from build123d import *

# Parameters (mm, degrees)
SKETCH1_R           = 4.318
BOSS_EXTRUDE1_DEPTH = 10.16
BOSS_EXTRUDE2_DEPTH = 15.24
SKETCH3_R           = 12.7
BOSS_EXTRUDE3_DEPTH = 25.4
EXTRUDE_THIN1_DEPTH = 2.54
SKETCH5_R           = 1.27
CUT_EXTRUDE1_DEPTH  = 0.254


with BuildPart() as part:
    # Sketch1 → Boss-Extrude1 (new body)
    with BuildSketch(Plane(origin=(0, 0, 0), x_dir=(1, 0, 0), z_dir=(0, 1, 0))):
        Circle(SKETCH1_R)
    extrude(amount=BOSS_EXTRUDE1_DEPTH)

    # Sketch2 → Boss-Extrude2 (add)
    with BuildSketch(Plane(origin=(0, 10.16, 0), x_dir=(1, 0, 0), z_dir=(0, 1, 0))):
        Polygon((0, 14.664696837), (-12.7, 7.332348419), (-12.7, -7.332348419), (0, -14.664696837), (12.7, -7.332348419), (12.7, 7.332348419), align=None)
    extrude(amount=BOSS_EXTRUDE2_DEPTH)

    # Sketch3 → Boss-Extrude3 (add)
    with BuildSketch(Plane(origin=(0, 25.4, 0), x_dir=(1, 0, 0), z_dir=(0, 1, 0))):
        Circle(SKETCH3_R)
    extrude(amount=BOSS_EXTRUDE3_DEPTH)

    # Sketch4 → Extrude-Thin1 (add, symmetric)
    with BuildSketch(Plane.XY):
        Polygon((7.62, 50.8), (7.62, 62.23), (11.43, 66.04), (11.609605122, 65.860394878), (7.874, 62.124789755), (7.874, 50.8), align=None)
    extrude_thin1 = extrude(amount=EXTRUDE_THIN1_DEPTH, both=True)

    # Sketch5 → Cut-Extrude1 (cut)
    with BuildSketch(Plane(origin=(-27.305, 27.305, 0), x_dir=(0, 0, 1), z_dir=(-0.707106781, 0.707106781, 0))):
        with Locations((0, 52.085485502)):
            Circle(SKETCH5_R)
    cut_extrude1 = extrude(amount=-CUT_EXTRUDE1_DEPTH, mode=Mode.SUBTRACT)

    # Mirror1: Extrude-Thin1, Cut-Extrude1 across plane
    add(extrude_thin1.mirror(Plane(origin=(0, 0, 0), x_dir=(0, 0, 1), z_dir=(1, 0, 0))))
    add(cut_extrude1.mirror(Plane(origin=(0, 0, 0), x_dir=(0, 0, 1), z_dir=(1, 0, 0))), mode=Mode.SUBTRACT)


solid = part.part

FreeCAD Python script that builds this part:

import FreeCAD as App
import Part
import Sketcher

V = App.Vector
Q = App.Units.Quantity

doc = App.newDocument("Part")
body = doc.addObject("PartDesign::Body", "Body")

sketch1 = doc.addObject("Sketcher::SketchObject", "Sketch")
body.addObject(sketch1)
sketch1.AttachmentSupport = (doc.XZ_Plane, [""])
sketch1.MapMode = "FlatFace"
sketch1.addGeometry(Part.Circle(V(0, 0, 0), V(0, 0, 1), 4.3), False)
sketch1.addConstraint([
    Sketcher.Constraint("Coincident", 0, 3, -1, 1),
    Sketcher.Constraint("Diameter", 0, Q("0.34 in")),
])
pad1 = doc.addObject("PartDesign::Pad", "Pad")
body.addObject(pad1)
pad1.Profile = sketch1
pad1.Length = Q("0.4 in")
pad1.Reversed = True

sketch2 = doc.addObject("Sketcher::SketchObject", "Sketch001")
body.addObject(sketch2)
sketch2.AttachmentSupport = (doc.XZ_Plane, [""])
sketch2.MapMode = "FlatFace"
sketch2.AttachmentOffset = App.Placement(V(0, 0, -0.4 * 25.4), App.Rotation())
sketch2.addGeometry([
    Part.LineSegment(V(0, -15, 0), V(-13, -7, 0)),
    Part.LineSegment(V(-13, -7, 0), V(-13, 7, 0)),
    Part.LineSegment(V(-13, 7, 0), V(0, 15, 0)),
    Part.LineSegment(V(0, 15, 0), V(13, 7, 0)),
    Part.LineSegment(V(13, 7, 0), V(13, -7, 0)),
    Part.LineSegment(V(13, -7, 0), V(0, -15, 0)),
], False)
sketch2.addConstraint([
    Sketcher.Constraint("Coincident", 0, 2, 1, 1),
    Sketcher.Constraint("Coincident", 1, 2, 2, 1),
    Sketcher.Constraint("Coincident", 2, 2, 3, 1),
    Sketcher.Constraint("Coincident", 3, 2, 4, 1),
    Sketcher.Constraint("Coincident", 4, 2, 5, 1),
    Sketcher.Constraint("Coincident", 5, 2, 0, 1),
    Sketcher.Constraint("Vertical", 1),
    Sketcher.Constraint("Vertical", 4),
    Sketcher.Constraint("Symmetric", 0, 2, 3, 2, -1, 1),
    Sketcher.Constraint("Symmetric", 2, 2, 5, 2, -1, 1),
    Sketcher.Constraint("PointOnObject", 2, 2, -2),
    Sketcher.Constraint("Parallel", 2, 5),
    Sketcher.Constraint("Horizontal", 1, 2, 3, 2),
    Sketcher.Constraint("Angle", 0, Q("150 deg")),
    Sketcher.Constraint("DistanceX", 1, 2, 3, 2, Q("1 in")),
    Sketcher.Constraint("DistanceY", 1, 1, 1, 2, 14.664697),
])
pad2 = doc.addObject("PartDesign::Pad", "Pad001")
body.addObject(pad2)
pad2.Profile = sketch2
pad2.Length = Q("0.6 in")
pad2.Reversed = True

sketch3 = doc.addObject("Sketcher::SketchObject", "Sketch002")
body.addObject(sketch3)
sketch3.AttachmentSupport = (doc.XZ_Plane, [""])
sketch3.MapMode = "FlatFace"
sketch3.AttachmentOffset = App.Placement(V(0, 0, -1 * 25.4), App.Rotation())
sketch3.addGeometry(Part.Circle(V(0, 0, 0), V(0, 0, 1), 13), False)
sketch3.addConstraint([
    Sketcher.Constraint("Coincident", 0, 3, -1, 1),
    Sketcher.Constraint("Diameter", 0, Q("1 in")),
])
pad3 = doc.addObject("PartDesign::Pad", "Pad002")
body.addObject(pad3)
pad3.Profile = sketch3
pad3.Length = Q("1 in")
pad3.Reversed = True

sketch4 = doc.addObject("Sketcher::SketchObject", "Sketch003")
body.addObject(sketch4)
sketch4.AttachmentSupport = (doc.XY_Plane, [""])
sketch4.MapMode = "FlatFace"
sketch4.addGeometry([
    Part.LineSegment(V(7.62, 62.23, 0), V(7.62, 50.8, 0)),
    Part.LineSegment(V(7.62, 50.8, 0), V(7.87, 50.8, 0)),
    Part.LineSegment(V(7.87, 50.8, 0), V(7.87, 62.12, 0)),
    Part.LineSegment(V(7.87, 62.12, 0), V(11.61, 65.86, 0)),
    Part.LineSegment(V(11.61, 65.86, 0), V(11.43, 66.04, 0)),
    Part.LineSegment(V(11.43, 66.04, 0), V(7.62, 62.23, 0)),
], False)
sketch4.addConstraint([
    Sketcher.Constraint("Coincident", 0, 2, 1, 1),
    Sketcher.Constraint("Coincident", 1, 2, 2, 1),
    Sketcher.Constraint("Coincident", 2, 2, 3, 1),
    Sketcher.Constraint("Coincident", 3, 2, 4, 1),
    Sketcher.Constraint("Coincident", 4, 2, 5, 1),
    Sketcher.Constraint("Coincident", 5, 2, 0, 1),
    Sketcher.Constraint("Vertical", 0),
    Sketcher.Constraint("Horizontal", 1),
    Sketcher.Constraint("Vertical", 2),
    Sketcher.Constraint("Perpendicular", 3, 4),
    Sketcher.Constraint("Perpendicular", 4, 5),
    Sketcher.Constraint("DistanceY", -1, 1, 0, 2, Q("2 in")),
    Sketcher.Constraint("Angle", 3, Q("45 deg")),
    Sketcher.Constraint("DistanceX", 1, 1, 1, 2, Q("0.01 in")),
    Sketcher.Constraint("DistanceY", 0, 2, 0, 1, Q("0.45 in")),
    Sketcher.Constraint("DistanceX", -1, 1, 0, 2, Q("0.3 in")),
    Sketcher.Constraint("DistanceY", -1, 1, 4, 2, Q("2.6 in")),
    Sketcher.Constraint("Distance", 4, Q("0.01 in")),
])
pad4 = doc.addObject("PartDesign::Pad", "Pad003")
body.addObject(pad4)
pad4.Profile = sketch4
pad4.Length = Q("0.2 in")
pad4.Midplane = True

sketch5 = doc.addObject("Sketcher::SketchObject", "Sketch004")
body.addObject(sketch5)
sketch5.Placement = App.Placement(V(-27.305, 27.305, 0), App.Rotation(V(0, 0, 1), V(0.707106781, 0.707106781, 0), V(-0.707106781, 0.707106781, 0), "ZXY"))
sketch5.addGeometry(Part.Circle(V(0, 52.1, 0), V(0, 0, 1), 1.3), False)
sketch5.addConstraint([
    Sketcher.Constraint("PointOnObject", 0, 3, -2),
    Sketcher.Constraint("Diameter", 0, Q("0.1 in")),
    Sketcher.Constraint("DistanceY", -1, 1, 0, 3, 52.085485),
])
pocket1 = doc.addObject("PartDesign::Pocket", "Pocket")
body.addObject(pocket1)
pocket1.Profile = sketch5
pocket1.Length = Q("0.01 in")
doc.recompute()

mirrored = doc.addObject("PartDesign::Mirrored", "Mirrored")
body.addObject(mirrored)
mirrored.Originals = [pad4, pocket1]
mirrored.MirrorPlane = (doc.YZ_Plane, [""])
body.Tip = mirrored

doc.recompute()
